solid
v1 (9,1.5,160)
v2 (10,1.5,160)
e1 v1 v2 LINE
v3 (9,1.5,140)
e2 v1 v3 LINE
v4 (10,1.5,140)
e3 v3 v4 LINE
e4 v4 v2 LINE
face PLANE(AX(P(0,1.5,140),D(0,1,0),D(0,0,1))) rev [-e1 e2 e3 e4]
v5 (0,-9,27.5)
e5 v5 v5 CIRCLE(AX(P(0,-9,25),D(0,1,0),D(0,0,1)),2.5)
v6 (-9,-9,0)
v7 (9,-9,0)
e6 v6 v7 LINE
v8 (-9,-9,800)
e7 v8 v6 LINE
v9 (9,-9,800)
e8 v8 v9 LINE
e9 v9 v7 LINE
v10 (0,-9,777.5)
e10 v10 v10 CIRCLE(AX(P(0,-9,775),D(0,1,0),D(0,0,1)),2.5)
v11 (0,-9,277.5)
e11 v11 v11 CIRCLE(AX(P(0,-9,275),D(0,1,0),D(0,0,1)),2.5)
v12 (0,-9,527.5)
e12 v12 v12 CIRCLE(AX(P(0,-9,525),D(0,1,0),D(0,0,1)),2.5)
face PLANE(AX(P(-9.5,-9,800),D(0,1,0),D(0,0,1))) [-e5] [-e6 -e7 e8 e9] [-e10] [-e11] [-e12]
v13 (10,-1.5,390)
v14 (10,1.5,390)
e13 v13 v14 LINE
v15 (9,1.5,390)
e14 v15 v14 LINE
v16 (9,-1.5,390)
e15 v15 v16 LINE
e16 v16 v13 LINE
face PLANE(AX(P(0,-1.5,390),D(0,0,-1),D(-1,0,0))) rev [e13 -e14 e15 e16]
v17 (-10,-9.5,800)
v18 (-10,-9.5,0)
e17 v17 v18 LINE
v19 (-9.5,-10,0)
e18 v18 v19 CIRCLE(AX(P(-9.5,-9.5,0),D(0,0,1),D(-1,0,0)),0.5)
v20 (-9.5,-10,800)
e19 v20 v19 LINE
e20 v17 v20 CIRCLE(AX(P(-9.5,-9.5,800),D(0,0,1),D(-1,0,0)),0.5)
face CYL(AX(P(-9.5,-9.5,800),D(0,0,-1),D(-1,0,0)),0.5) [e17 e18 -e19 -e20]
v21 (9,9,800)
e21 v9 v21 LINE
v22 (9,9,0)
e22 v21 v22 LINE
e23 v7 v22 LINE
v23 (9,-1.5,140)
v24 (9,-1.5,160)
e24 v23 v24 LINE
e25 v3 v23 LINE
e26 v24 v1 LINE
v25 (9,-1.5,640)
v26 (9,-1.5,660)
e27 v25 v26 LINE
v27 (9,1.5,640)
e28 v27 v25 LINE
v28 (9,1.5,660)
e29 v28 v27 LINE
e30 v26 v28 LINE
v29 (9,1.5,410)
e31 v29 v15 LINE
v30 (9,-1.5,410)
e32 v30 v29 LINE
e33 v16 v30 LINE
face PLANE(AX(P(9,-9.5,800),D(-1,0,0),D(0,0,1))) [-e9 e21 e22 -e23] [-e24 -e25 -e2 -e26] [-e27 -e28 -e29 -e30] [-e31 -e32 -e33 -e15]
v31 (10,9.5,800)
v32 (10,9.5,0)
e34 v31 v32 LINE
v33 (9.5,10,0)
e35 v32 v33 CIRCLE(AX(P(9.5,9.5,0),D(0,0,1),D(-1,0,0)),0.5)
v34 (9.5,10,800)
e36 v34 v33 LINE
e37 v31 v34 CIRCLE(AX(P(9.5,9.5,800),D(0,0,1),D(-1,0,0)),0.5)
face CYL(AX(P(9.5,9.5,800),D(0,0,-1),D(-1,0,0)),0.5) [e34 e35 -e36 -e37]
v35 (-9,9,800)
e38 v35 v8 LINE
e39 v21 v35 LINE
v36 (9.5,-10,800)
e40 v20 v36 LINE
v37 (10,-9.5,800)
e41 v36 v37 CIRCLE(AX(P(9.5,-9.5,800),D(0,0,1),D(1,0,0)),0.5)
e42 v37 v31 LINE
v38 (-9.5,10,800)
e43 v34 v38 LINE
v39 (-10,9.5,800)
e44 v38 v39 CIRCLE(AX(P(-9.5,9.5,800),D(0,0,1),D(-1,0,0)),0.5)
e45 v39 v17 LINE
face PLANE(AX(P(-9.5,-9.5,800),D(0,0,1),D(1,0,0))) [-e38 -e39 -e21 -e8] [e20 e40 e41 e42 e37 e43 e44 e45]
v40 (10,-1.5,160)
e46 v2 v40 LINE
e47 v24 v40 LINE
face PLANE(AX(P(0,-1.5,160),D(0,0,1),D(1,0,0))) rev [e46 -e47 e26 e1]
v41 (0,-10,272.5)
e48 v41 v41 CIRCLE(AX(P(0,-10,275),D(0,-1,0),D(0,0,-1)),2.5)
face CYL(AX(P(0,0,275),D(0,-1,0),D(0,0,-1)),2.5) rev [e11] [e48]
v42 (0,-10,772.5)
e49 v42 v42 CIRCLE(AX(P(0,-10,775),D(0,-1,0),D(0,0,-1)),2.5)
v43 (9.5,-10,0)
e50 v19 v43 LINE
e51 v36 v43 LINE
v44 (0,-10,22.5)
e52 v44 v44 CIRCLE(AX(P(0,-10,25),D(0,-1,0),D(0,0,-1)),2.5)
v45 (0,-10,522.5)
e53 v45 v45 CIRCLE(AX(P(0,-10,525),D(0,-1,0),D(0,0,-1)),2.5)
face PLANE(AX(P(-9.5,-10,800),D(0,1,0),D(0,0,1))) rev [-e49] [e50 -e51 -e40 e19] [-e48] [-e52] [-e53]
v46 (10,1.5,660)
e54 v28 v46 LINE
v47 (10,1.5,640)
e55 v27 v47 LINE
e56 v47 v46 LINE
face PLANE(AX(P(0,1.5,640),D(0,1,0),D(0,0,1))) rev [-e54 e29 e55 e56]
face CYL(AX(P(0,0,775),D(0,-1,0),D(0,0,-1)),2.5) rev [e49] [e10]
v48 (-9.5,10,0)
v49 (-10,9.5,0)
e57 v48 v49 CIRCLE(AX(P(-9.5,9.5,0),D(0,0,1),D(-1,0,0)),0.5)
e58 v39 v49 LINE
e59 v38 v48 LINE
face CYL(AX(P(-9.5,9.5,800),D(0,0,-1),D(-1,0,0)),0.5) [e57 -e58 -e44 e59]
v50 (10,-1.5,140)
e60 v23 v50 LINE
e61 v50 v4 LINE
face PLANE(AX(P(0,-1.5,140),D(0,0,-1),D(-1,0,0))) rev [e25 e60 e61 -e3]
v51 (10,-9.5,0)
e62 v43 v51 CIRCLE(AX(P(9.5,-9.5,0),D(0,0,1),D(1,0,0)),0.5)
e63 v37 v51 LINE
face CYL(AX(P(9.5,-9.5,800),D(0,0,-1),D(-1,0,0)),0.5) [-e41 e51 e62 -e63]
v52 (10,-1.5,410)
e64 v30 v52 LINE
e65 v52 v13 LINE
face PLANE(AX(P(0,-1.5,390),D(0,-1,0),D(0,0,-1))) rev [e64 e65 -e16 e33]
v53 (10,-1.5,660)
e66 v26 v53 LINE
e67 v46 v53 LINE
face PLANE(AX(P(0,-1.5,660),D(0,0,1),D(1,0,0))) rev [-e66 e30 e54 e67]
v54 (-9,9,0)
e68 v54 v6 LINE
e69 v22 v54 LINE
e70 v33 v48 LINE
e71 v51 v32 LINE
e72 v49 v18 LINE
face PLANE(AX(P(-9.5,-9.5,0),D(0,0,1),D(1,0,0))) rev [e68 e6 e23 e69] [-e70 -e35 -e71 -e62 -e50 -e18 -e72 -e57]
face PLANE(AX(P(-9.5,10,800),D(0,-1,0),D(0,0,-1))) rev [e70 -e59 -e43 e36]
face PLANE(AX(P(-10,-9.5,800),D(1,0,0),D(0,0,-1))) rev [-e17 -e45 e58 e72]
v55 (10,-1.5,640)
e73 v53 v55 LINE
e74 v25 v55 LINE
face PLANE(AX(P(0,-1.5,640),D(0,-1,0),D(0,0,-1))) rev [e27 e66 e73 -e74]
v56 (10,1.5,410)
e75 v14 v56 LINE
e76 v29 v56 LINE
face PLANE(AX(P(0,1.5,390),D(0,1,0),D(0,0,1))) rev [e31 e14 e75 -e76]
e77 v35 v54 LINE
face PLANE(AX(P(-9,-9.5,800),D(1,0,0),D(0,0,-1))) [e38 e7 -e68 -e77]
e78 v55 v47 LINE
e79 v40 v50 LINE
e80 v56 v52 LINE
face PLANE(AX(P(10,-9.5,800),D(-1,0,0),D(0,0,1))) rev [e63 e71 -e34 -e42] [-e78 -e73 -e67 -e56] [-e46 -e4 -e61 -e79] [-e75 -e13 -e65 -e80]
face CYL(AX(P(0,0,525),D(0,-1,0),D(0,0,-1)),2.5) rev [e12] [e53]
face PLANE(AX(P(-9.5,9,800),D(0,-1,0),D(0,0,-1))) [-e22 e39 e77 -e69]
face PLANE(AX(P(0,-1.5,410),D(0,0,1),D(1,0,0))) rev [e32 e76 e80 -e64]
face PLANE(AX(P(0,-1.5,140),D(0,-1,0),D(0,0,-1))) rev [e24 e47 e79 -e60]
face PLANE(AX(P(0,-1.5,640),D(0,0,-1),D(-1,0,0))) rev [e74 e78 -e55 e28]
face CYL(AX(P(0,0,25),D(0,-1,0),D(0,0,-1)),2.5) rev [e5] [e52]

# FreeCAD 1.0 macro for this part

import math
import FreeCAD as App
import Part
import Sketcher

doc = App.newDocument("Part")
params = doc.addObject("Spreadsheet::Sheet", "Params")
for row, (alias, value) in enumerate([
    ("sketch1_radius", "0.5 mm"),
    ("sketch1_width", "19 mm"),
    ("sketch1_width2", "18 mm"),
    ("pad1_length", "800 mm"),
    ("sketch2_width", "3 mm"),
    ("sketch2_height", "20 mm"),
    ("pocket1_length", "10 mm"),
    ("sketch3_diameter", "5 mm"),
    ("pocket2_length", "10 mm"),
], start=1):
    params.set(f"A{row}", alias)
    params.set(f"B{row}", "=" + value)
    params.setAlias(f"B{row}", alias)

body = doc.addObject("PartDesign::Body", "Body")

sketch1 = body.newObject("Sketcher::SketchObject", "Sketch")
sketch1.AttachmentSupport = (doc.getObject("XY_Plane"), [""])
sketch1.MapMode = "FlatFace"
sketch1.addGeometry([
    Part.LineSegment(App.Vector(-10, 9.5, 0), App.Vector(-10, -9.5, 0)),
    Part.ArcOfCircle(Part.Circle(App.Vector(-9.5, -9.5, 0), App.Vector(0, 0, 1), 0.5), math.radians(180), math.radians(270)),
    Part.LineSegment(App.Vector(-9.5, -10, 0), App.Vector(9.5, -10, 0)),
    Part.ArcOfCircle(Part.Circle(App.Vector(9.5, -9.5, 0), App.Vector(0, 0, 1), 0.5), math.radians(-90), math.radians(0)),
    Part.LineSegment(App.Vector(10, -9.5, 0), App.Vector(10, 9.5, 0)),
    Part.ArcOfCircle(Part.Circle(App.Vector(9.5, 9.5, 0), App.Vector(0, 0, 1), 0.5), math.radians(0), math.radians(90)),
    Part.LineSegment(App.Vector(9.5, 10, 0), App.Vector(-9.5, 10, 0)),
    Part.ArcOfCircle(Part.Circle(App.Vector(-9.5, 9.5, 0), App.Vector(0, 0, 1), 0.5), math.radians(90), math.radians(180)),
    Part.LineSegment(App.Vector(9, -9, 0), App.Vector(-9, -9, 0)),
    Part.LineSegment(App.Vector(-9, -9, 0), App.Vector(-9, 9, 0)),
    Part.LineSegment(App.Vector(-9, 9, 0), App.Vector(9, 9, 0)),
    Part.LineSegment(App.Vector(9, 9, 0), App.Vector(9, -9, 0)),
], False)
sketch1.addConstraint([
    Sketcher.Constraint("Tangent", 0, 2, 1, 1),
    Sketcher.Constraint("Tangent", 1, 2, 2, 1),
    Sketcher.Constraint("Tangent", 2, 2, 3, 1),
    Sketcher.Constraint("Tangent", 3, 2, 4, 1),
    Sketcher.Constraint("Tangent", 4, 2, 5, 1),
    Sketcher.Constraint("Tangent", 5, 2, 6, 1),
    Sketcher.Constraint("Tangent", 6, 2, 7, 1),
    Sketcher.Constraint("Tangent", 7, 2, 0, 1),
    Sketcher.Constraint("Coincident", 8, 2, 9, 1),
    Sketcher.Constraint("Coincident", 9, 2, 10, 1),
    Sketcher.Constraint("Coincident", 10, 2, 11, 1),
    Sketcher.Constraint("Coincident", 11, 2, 8, 1),
    Sketcher.Constraint("Vertical", 0),
    Sketcher.Constraint("Horizontal", 2),
    Sketcher.Constraint("Vertical", 4),
    Sketcher.Constraint("Horizontal", 6),
    Sketcher.Constraint("Horizontal", 8),
    Sketcher.Constraint("Vertical", 9),
    Sketcher.Constraint("Horizontal", 10),
    Sketcher.Constraint("Vertical", 11),
    Sketcher.Constraint("Equal", 1, 3),
    Sketcher.Constraint("Equal", 3, 5),
    Sketcher.Constraint("Equal", 5, 7),
    Sketcher.Constraint("Symmetric", 1, 3, 5, 3, -1, 1),
    Sketcher.Constraint("Symmetric", 8, 2, 10, 2, -1, 1),
    Sketcher.Constraint("Equal", 6, 0),
    Sketcher.Constraint("Equal", 10, 9),
    Sketcher.Constraint("Radius", 1, 0.5),
    Sketcher.Constraint("DistanceX", 2, 1, 2, 2, 19.0),
    Sketcher.Constraint("DistanceX", 8, 2, 8, 1, 18.0),
])
sketch1.setExpression("Constraints[27]", "Params.sketch1_radius")
sketch1.setExpression("Constraints[28]", "Params.sketch1_width")
sketch1.setExpression("Constraints[29]", "Params.sketch1_width2")
pad1 = body.newObject("PartDesign::Pad", "Pad")
pad1.Profile = sketch1
pad1.setExpression("Length", "Params.pad1_length")

sketch2 = body.newObject("Sketcher::SketchObject", "Sketch001")
sketch2.AttachmentSupport = (doc.getObject("YZ_Plane"), [""])
sketch2.MapMode = "FlatFace"
sketch2.AttachmentOffset = App.Placement(App.Vector(0, 0, 10), App.Rotation())
sketch2.addGeometry([
    Part.LineSegment(App.Vector(1.5, 160, 0), App.Vector(-1.5, 160, 0)),
    Part.LineSegment(App.Vector(-1.5, 160, 0), App.Vector(-1.5, 140, 0)),
    Part.LineSegment(App.Vector(-1.5, 140, 0), App.Vector(1.5, 140, 0)),
    Part.LineSegment(App.Vector(1.5, 140, 0), App.Vector(1.5, 160, 0)),
    Part.LineSegment(App.Vector(1.5, 410, 0), App.Vector(-1.5, 410, 0)),
    Part.LineSegment(App.Vector(-1.5, 410, 0), App.Vector(-1.5, 390, 0)),
    Part.LineSegment(App.Vector(-1.5, 390, 0), App.Vector(1.5, 390, 0)),
    Part.LineSegment(App.Vector(1.5, 390, 0), App.Vector(1.5, 410, 0)),
    Part.LineSegment(App.Vector(1.5, 660, 0), App.Vector(-1.5, 660, 0)),
    Part.LineSegment(App.Vector(-1.5, 660, 0), App.Vector(-1.5, 640, 0)),
    Part.LineSegment(App.Vector(-1.5, 640, 0), App.Vector(1.5, 640, 0)),
    Part.LineSegment(App.Vector(1.5, 640, 0), App.Vector(1.5, 660, 0)),
], False)
sketch2.addConstraint([
    Sketcher.Constraint("Coincident", 0, 2, 1, 1),
    Sketcher.Constraint("Coincident", 1, 2, 2, 1),
    Sketcher.Constraint("Coincident", 2, 2, 3, 1),
    Sketcher.Constraint("Coincident", 3, 2, 0, 1),
    Sketcher.Constraint("Coincident", 4, 2, 5, 1),
    Sketcher.Constraint("Coincident", 5, 2, 6, 1),
    Sketcher.Constraint("Coincident", 6, 2, 7, 1),
    Sketcher.Constraint("Coincident", 7, 2, 4, 1),
    Sketcher.Constraint("Coincident", 8, 2, 9, 1),
    Sketcher.Constraint("Coincident", 9, 2, 10, 1),
    Sketcher.Constraint("Coincident", 10, 2, 11, 1),
    Sketcher.Constraint("Coincident", 11, 2, 8, 1),
    Sketcher.Constraint("Horizontal", 0),
    Sketcher.Constraint("Vertical", 1),
    Sketcher.Constraint("Horizontal", 2),
    Sketcher.Constraint("Vertical", 3),
    Sketcher.Constraint("Horizontal", 4),
    Sketcher.Constraint("Vertical", 5),
    Sketcher.Constraint("Horizontal", 6),
    Sketcher.Constraint("Vertical", 7),
    Sketcher.Constraint("Horizontal", 8),
    Sketcher.Constraint("Vertical", 9),
    Sketcher.Constraint("Horizontal", 10),
    Sketcher.Constraint("Vertical", 11),
    Sketcher.Constraint("Vertical", 1, 2, 4, 2),
    Sketcher.Constraint("Vertical", 3, 2, 6, 2),
    Sketcher.Constraint("Vertical", 5, 2, 8, 2),
    Sketcher.Constraint("Vertical", 7, 2, 10, 2),
    Sketcher.Constraint("Equal", 3, 5),
    Sketcher.Constraint("Equal", 7, 9),
    Sketcher.Constraint("DistanceX", 0, 2, 0, 1, 3.0),
    Sketcher.Constraint("DistanceY", 1, 2, 1, 1, 20.0),
    Sketcher.Constraint("DistanceY", -1, 1, 0, 2, 160.0),
    Sketcher.Constraint("DistanceY", -1, 1, 4, 2, 410.0),
    Sketcher.Constraint("DistanceY", -1, 1, 8, 2, 660.0),
    Sketcher.Constraint("DistanceX", 0, 2, -1, 1, 1.5),
])
sketch2.setExpression("Constraints[30]", "Params.sketch2_width")
sketch2.setExpression("Constraints[31]", "Params.sketch2_height")
pocket1 = body.newObject("PartDesign::Pocket", "Pocket")
pocket1.Profile = sketch2
pocket1.setExpression("Length", "Params.pocket1_length")

sketch3 = body.newObject("Sketcher::SketchObject", "Sketch002")
sketch3.AttachmentSupport = (doc.getObject("XZ_Plane"), [""])
sketch3.MapMode = "FlatFace"
sketch3.AttachmentOffset = App.Placement(App.Vector(0, 0, 10), App.Rotation())
sketch3.addGeometry([
    Part.Circle(App.Vector(0, 25, 0), App.Vector(0, 0, 1), 2.5),
    Part.Circle(App.Vector(0, 275, 0), App.Vector(0, 0, 1), 2.5),
    Part.Circle(App.Vector(0, 525, 0), App.Vector(0, 0, 1), 2.5),
    Part.Circle(App.Vector(0, 775, 0), App.Vector(0, 0, 1), 2.5),
], False)
sketch3.addConstraint([
    Sketcher.Constraint("Equal", 0, 1),
    Sketcher.Constraint("Equal", 1, 2),
    Sketcher.Constraint("Equal", 2, 3),
    Sketcher.Constraint("PointOnObject", 0, 3, -2),
    Sketcher.Constraint("PointOnObject", 1, 3, -2),
    Sketcher.Constraint("PointOnObject", 2, 3, -2),
    Sketcher.Constraint("PointOnObject", 3, 3, -2),
    Sketcher.Constraint("Diameter", 0, 5.0),
    Sketcher.Constraint("DistanceY", -1, 1, 0, 3, 25.0),
    Sketcher.Constraint("DistanceY", -1, 1, 1, 3, 275.0),
    Sketcher.Constraint("DistanceY", -1, 1, 2, 3, 525.0),
    Sketcher.Constraint("DistanceY", -1, 1, 3, 3, 775.0),
])
sketch3.setExpression("Constraints[7]", "Params.sketch3_diameter")
pocket2 = body.newObject("PartDesign::Pocket", "Pocket001")
pocket2.Profile = sketch3
pocket2.setExpression("Length", "Params.pocket2_length")

doc.recompute()
